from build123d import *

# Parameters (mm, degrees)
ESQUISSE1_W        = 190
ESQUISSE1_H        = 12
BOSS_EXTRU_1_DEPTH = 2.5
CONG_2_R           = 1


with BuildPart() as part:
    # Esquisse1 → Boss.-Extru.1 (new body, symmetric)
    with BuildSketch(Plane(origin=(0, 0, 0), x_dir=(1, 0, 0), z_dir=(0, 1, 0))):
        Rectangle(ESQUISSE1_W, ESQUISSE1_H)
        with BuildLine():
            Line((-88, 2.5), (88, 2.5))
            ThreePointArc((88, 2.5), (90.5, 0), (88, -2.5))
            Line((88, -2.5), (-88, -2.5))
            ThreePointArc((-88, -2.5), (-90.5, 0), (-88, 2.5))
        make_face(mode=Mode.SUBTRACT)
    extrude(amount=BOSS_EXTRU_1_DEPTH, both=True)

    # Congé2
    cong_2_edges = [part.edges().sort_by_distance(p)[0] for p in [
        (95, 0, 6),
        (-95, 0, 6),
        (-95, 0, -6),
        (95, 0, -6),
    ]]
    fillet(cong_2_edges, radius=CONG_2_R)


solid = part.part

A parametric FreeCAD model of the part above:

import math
import FreeCAD as App
import Part
import Sketcher

V = App.Vector
Q = App.Units.Quantity


def edges_at(feature, points):
    """Names of the edges that pass closest to the given points."""
    edges = feature.Shape.Edges
    near = lambda p: min(range(len(edges)), key=lambda i: edges[i].distToShape(Part.Vertex(*p))[0])
    return sorted({f"Edge{near(p) + 1}" for p in points})

doc = App.newDocument("Part")
params = doc.addObject("Spreadsheet::Sheet", "Params")
for row, (alias, value) in enumerate([
    ("sketch1_radius", "2.5 mm"),
    ("sketch1_width", "190 mm"),
    ("sketch1_width2", "176 mm"),
    ("sketch1_height", "12 mm"),
    ("pad1_length", "5 mm"),
    ("fillet_radius", "1 mm"),
], start=1):
    params.set(f"A{row}", alias)
    params.set(f"B{row}", "=" + value)
    params.setAlias(f"B{row}", alias)

body = doc.addObject("PartDesign::Body", "Body")

# Sketch on XZ plane
sketch1 = body.newObject("Sketcher::SketchObject", "Sketch")
sketch1.AttachmentSupport = (doc.getObject("XZ_Plane"), [""])
sketch1.MapMode = "FlatFace"
sketch1.addGeometry([
    Part.LineSegment(V(-95, -6, 0), V(-95, 6, 0)),  # 0
    Part.LineSegment(V(-95, 6, 0), V(95, 6, 0)),  # 1
    Part.LineSegment(V(95, 6, 0), V(95, -6, 0)),  # 2
    Part.LineSegment(V(95, -6, 0), V(-95, -6, 0)),  # 3
    Part.ArcOfCircle(Part.Circle(V(-88, 0, 0), V(0, 0, 1), 2.5), math.radians(90), math.radians(270)),  # 4
    Part.LineSegment(V(-88, -2.5, 0), V(88, -2.5, 0)),  # 5
    Part.ArcOfCircle(Part.Circle(V(88, 0, 0), V(0, 0, 1), 2.5), math.radians(-90), math.radians(90)),  # 6
    Part.LineSegment(V(88, 2.5, 0), V(-88, 2.5, 0)),  # 7
], False)
sketch1.addConstraint([
    Sketcher.Constraint("Coincident", 0, 2, 1, 1),
    Sketcher.Constraint("Coincident", 1, 2, 2, 1),
    Sketcher.Constraint("Coincident", 2, 2, 3, 1),
    Sketcher.Constraint("Coincident", 3, 2, 0, 1),
    Sketcher.Constraint("Tangent", 4, 2, 5, 1),
    Sketcher.Constraint("Tangent", 5, 2, 6, 1),
    Sketcher.Constraint("Tangent", 6, 2, 7, 1),
    Sketcher.Constraint("Tangent", 7, 2, 4, 1),
    Sketcher.Constraint("Vertical", 0),
    Sketcher.Constraint("Horizontal", 1),
    Sketcher.Constraint("Vertical", 2),
    Sketcher.Constraint("Horizontal", 3),
    Sketcher.Constraint("Horizontal", 5),
    Sketcher.Constraint("Horizontal", 7),
    Sketcher.Constraint("Symmetric", 4, 3, 6, 3, -1, 1),
    Sketcher.Constraint("Symmetric", 0, 2, 2, 2, -1, 1),
    Sketcher.Constraint("Radius", 4, Q("2.5 mm")),
    Sketcher.Constraint("DistanceX", 1, 1, 1, 2, Q("190 mm")),
    Sketcher.Constraint("DistanceX", 5, 1, 5, 2, Q("176 mm")),
    Sketcher.Constraint("DistanceY", 0, 1, 0, 2, Q("12 mm")),
])
sketch1.setExpression("Constraints[16]", "Params.sketch1_radius")
sketch1.setExpression("Constraints[17]", "Params.sketch1_width")
sketch1.setExpression("Constraints[18]", "Params.sketch1_width2")
sketch1.setExpression("Constraints[19]", "Params.sketch1_height")
pad1 = body.newObject("PartDesign::Pad", "Pad")
pad1.Profile = sketch1
pad1.setExpression("Length", "Params.pad1_length")
pad1.Midplane = True
doc.recompute()

fillet = body.newObject("PartDesign::Fillet", "Fillet")
fillet.Base = (pad1, edges_at(pad1, [
    (95, 0, 6),
    (-95, 0, 6),
    (-95, 0, -6),
    (95, 0, -6),
]))
fillet.setExpression("Radius", "Params.fillet_radius")

doc.recompute()
